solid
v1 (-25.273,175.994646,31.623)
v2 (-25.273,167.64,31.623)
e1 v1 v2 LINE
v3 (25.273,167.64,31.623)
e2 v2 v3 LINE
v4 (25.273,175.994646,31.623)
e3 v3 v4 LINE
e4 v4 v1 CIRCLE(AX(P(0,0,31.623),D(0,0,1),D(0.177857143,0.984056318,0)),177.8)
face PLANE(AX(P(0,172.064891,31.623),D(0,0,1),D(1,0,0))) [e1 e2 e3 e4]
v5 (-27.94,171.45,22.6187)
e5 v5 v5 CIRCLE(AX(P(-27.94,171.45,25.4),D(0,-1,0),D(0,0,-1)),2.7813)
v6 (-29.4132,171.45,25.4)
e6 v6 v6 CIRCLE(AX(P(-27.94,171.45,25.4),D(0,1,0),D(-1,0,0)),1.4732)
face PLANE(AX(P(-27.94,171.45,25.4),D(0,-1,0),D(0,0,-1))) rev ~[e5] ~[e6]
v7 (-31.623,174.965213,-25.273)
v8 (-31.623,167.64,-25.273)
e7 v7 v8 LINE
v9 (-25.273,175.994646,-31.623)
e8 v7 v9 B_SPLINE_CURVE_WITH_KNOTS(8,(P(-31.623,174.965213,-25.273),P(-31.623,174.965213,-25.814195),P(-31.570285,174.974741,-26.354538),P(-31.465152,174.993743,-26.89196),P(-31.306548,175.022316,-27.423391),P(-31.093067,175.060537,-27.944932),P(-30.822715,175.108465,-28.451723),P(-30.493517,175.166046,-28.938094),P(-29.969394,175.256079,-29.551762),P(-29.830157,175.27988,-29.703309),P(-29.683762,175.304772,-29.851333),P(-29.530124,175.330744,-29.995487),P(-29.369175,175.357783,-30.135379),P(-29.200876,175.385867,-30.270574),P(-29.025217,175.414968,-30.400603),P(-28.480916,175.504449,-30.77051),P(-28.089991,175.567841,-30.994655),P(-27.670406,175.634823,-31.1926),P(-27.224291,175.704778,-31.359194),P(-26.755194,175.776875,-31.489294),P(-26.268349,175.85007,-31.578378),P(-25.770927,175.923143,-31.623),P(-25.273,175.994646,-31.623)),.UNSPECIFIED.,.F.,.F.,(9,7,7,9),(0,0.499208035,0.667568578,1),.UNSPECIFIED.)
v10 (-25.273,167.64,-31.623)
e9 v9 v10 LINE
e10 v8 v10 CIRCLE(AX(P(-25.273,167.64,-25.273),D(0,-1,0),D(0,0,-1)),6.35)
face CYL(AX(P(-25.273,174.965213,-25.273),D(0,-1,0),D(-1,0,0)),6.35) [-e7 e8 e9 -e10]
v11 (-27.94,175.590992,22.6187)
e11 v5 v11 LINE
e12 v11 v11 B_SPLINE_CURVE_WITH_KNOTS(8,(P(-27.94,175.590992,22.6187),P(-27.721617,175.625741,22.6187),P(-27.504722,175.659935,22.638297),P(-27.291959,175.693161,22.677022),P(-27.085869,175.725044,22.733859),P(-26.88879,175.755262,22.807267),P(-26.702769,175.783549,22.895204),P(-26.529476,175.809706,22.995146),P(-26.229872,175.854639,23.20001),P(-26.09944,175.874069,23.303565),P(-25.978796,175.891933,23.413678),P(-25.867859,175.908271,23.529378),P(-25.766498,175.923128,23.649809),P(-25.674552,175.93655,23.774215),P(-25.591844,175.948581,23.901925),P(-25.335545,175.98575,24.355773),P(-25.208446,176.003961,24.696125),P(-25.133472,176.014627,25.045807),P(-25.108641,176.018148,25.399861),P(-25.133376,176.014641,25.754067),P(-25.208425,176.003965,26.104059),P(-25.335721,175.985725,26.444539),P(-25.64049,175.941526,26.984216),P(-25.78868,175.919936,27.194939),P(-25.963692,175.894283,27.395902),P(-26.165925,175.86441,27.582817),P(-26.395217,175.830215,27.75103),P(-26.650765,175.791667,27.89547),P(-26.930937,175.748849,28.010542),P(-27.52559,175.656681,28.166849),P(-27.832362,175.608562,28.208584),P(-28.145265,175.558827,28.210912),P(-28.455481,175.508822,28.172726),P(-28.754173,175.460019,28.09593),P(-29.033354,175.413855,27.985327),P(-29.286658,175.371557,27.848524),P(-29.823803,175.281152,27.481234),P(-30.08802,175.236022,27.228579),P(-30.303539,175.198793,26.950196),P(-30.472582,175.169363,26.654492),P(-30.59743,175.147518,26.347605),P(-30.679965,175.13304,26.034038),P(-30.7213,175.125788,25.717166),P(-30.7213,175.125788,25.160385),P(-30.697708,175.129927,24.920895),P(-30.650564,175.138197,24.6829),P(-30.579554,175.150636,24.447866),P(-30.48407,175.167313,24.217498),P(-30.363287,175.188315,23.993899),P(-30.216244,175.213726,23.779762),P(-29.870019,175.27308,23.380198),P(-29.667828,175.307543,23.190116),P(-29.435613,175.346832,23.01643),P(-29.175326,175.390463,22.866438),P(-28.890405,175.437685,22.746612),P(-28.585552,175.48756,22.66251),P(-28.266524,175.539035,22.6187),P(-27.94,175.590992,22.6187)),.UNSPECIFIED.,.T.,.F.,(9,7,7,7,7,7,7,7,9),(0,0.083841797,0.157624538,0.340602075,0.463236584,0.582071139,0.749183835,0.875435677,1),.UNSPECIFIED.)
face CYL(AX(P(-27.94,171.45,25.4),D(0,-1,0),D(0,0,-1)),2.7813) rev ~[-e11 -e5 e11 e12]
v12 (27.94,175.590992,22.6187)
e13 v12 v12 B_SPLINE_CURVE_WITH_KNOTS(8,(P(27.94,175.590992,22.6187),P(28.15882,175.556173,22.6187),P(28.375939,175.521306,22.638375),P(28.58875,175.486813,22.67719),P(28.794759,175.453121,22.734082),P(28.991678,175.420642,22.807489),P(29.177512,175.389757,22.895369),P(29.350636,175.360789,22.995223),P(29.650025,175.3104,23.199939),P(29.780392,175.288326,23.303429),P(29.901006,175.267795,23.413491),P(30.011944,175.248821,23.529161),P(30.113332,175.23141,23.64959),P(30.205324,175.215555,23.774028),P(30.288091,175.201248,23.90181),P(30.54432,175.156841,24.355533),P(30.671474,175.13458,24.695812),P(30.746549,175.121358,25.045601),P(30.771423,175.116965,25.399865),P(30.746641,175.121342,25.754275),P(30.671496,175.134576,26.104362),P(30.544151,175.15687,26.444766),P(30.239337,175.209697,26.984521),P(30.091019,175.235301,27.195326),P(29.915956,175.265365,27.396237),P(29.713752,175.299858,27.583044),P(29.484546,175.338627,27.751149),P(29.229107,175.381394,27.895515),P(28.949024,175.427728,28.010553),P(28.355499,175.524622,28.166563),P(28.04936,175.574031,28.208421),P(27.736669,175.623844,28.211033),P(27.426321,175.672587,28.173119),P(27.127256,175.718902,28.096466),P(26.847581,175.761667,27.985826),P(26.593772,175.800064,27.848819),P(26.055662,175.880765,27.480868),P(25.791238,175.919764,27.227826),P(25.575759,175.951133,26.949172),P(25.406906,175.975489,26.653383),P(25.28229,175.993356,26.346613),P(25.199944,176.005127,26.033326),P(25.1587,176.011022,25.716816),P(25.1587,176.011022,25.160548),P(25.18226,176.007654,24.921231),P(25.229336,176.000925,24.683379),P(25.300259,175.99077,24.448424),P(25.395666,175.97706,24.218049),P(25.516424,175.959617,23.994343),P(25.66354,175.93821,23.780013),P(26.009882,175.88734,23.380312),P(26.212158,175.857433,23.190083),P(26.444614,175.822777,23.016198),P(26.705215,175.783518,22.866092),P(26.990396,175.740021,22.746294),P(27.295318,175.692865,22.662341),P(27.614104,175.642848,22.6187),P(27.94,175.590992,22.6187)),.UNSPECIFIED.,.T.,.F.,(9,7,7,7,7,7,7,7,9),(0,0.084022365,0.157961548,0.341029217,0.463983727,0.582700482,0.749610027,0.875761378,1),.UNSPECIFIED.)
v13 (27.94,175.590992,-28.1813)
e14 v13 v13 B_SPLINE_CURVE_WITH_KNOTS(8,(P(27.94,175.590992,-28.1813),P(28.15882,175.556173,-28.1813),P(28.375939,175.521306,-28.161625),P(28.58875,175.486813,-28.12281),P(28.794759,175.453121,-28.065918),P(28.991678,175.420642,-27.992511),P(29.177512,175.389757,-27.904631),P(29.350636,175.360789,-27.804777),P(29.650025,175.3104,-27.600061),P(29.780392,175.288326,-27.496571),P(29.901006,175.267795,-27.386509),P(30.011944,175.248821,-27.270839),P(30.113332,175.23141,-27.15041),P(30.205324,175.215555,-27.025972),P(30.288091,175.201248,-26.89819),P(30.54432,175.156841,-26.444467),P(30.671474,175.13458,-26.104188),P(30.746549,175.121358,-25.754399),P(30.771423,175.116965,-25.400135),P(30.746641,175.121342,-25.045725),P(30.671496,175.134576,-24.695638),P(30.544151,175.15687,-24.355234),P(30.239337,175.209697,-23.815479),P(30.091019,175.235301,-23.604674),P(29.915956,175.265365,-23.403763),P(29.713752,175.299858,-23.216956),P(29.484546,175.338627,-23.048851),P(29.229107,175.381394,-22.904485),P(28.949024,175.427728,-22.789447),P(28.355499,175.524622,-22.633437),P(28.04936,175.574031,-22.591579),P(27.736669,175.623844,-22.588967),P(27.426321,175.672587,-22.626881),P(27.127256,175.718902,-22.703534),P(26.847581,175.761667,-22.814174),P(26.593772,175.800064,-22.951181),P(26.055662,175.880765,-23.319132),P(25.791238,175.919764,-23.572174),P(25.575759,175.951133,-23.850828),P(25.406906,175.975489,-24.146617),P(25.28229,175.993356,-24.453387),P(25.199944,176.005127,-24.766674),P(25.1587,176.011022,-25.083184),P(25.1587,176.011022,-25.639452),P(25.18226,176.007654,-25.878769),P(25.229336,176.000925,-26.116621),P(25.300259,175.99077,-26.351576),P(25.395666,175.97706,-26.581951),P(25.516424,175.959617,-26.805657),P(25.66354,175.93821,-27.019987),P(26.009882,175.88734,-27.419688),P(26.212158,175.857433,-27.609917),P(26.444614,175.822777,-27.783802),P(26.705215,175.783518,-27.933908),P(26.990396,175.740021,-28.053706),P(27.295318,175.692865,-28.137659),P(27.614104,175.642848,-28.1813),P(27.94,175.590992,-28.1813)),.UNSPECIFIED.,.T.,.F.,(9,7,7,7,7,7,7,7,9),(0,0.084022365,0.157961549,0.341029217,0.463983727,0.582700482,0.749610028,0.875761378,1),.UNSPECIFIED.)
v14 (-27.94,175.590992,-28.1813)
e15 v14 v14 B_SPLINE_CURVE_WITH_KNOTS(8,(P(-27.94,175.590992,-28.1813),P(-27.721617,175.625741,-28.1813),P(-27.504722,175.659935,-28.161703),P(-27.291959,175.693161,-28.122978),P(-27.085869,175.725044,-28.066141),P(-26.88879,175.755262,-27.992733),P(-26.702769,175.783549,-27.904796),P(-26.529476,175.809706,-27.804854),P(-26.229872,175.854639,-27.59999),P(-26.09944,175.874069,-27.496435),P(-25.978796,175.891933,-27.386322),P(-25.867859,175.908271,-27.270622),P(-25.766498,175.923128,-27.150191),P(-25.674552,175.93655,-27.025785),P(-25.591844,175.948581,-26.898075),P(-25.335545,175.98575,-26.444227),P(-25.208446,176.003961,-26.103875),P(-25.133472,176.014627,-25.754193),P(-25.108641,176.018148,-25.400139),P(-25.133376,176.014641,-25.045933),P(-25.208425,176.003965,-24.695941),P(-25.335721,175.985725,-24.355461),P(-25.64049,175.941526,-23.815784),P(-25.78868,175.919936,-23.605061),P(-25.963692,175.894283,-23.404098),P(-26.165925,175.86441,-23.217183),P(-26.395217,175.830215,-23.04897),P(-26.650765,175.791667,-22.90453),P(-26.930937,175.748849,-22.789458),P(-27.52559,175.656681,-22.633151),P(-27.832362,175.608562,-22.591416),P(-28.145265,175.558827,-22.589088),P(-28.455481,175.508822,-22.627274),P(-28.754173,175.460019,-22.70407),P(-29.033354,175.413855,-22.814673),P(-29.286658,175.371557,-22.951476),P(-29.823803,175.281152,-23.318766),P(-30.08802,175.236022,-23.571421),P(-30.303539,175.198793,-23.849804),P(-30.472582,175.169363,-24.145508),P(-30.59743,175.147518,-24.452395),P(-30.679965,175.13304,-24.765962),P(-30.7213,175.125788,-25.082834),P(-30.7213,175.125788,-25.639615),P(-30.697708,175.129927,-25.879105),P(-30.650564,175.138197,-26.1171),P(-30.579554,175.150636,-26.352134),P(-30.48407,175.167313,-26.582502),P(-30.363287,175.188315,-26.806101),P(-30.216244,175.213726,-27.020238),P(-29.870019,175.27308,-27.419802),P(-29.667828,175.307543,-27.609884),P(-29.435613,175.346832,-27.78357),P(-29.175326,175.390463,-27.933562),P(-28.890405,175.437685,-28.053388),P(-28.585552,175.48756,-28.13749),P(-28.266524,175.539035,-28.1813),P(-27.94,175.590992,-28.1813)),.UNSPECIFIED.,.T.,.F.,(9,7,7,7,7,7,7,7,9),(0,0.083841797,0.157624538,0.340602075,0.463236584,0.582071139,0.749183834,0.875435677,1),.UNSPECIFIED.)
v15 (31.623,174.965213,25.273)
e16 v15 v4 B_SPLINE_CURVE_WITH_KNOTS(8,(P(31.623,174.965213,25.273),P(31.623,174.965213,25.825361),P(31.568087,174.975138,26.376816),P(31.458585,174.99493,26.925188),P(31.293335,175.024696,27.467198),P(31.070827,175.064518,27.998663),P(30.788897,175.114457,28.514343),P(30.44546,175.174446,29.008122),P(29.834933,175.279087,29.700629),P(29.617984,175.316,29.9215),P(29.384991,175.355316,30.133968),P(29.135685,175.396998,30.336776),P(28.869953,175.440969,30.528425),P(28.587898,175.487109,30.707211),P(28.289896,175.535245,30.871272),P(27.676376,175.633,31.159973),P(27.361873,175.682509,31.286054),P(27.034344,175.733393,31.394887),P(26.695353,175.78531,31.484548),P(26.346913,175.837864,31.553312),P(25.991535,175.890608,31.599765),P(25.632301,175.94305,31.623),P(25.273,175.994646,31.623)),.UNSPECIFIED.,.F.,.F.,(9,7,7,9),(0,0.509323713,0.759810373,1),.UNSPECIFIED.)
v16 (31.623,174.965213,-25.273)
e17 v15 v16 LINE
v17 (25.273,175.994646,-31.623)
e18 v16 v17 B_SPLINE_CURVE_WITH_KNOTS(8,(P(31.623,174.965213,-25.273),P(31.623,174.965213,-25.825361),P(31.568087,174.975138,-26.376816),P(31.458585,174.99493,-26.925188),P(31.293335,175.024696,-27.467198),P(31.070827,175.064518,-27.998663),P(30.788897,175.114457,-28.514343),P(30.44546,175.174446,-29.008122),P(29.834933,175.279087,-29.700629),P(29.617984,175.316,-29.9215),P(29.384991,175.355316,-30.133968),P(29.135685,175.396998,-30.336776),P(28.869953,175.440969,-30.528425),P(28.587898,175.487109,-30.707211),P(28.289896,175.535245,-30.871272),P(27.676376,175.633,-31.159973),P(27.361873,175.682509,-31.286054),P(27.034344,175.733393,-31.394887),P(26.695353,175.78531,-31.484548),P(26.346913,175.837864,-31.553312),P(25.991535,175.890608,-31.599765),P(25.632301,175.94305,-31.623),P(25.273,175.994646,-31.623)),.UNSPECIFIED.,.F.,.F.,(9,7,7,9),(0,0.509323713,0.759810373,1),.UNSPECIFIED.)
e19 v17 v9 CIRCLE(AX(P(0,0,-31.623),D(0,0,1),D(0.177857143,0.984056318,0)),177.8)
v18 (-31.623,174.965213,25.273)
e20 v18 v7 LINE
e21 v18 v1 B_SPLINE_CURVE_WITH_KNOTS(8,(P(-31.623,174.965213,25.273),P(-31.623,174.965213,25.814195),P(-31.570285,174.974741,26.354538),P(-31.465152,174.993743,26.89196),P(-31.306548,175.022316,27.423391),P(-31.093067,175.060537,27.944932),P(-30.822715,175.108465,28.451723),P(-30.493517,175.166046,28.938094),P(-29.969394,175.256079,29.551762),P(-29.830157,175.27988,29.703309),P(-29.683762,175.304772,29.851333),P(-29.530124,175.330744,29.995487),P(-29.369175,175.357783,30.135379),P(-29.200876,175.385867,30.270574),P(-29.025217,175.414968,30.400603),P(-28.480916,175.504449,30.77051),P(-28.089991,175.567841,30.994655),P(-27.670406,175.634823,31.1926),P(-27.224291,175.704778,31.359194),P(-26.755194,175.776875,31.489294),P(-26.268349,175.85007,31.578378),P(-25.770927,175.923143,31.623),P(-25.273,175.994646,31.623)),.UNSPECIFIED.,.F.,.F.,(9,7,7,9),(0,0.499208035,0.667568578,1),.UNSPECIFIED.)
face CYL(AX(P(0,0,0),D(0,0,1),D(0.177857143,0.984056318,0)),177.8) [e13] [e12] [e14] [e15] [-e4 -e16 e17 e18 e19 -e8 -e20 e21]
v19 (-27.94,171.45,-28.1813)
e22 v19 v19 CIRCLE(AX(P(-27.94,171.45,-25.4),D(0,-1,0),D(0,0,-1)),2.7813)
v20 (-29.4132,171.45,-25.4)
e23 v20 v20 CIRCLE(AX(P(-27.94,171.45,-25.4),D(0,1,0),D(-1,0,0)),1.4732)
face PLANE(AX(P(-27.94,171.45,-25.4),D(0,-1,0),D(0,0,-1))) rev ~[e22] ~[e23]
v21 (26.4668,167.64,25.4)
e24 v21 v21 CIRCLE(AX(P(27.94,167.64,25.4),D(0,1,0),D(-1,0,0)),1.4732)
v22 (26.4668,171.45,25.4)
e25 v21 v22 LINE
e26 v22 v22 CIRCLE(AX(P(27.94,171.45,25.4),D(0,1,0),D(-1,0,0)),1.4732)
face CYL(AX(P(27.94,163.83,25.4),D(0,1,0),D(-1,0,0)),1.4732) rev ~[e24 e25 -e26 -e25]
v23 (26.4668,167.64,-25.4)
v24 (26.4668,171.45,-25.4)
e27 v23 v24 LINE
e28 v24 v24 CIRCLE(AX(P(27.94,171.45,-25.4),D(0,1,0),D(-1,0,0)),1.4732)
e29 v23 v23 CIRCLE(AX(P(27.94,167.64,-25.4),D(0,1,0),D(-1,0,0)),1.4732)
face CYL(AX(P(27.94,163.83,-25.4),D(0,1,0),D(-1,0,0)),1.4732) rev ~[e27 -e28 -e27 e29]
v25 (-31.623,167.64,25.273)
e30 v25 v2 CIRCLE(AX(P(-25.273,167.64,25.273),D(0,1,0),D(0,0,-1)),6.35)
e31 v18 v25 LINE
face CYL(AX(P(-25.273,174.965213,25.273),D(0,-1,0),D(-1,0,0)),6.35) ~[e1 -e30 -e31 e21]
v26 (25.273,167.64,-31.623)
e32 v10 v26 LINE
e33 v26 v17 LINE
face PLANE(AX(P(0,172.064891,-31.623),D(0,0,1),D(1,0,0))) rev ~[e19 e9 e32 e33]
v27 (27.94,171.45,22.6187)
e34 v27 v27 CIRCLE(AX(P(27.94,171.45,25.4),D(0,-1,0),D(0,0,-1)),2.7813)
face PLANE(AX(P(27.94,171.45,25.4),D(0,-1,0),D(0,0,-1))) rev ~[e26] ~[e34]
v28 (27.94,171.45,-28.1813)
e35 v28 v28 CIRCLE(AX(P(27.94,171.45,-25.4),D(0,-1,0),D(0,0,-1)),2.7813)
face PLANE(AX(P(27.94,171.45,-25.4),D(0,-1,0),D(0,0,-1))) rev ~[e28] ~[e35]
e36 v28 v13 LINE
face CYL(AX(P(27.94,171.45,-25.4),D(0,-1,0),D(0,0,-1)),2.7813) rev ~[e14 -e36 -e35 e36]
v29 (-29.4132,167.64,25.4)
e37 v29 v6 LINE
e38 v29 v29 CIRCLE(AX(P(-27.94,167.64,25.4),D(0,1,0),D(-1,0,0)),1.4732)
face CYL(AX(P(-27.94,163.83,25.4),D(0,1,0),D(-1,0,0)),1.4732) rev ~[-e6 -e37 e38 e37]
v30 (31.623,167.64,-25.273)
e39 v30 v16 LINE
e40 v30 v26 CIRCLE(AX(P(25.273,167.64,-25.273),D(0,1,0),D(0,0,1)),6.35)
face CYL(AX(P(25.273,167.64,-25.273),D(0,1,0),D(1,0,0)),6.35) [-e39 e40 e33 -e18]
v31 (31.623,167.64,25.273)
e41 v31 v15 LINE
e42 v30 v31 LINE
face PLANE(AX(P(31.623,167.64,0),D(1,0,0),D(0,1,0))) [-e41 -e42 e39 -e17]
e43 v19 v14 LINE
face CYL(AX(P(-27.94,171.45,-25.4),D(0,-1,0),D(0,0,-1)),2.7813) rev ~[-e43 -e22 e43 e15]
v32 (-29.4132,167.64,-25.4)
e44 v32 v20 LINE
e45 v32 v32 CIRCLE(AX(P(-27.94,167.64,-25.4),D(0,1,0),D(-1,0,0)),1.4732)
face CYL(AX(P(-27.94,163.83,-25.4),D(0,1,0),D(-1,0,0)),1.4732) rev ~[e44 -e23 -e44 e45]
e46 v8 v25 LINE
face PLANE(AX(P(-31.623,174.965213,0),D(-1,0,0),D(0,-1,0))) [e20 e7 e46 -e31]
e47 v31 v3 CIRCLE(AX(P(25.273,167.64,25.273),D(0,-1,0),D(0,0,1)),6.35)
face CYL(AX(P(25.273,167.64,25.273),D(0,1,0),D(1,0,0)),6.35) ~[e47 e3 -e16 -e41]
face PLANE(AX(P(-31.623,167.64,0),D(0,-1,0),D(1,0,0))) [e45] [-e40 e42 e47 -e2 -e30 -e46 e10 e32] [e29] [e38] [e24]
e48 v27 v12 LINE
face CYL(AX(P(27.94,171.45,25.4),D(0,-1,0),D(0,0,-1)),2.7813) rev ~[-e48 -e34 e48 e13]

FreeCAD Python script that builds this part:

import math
import FreeCAD as App
import Part
import Sketcher

V = App.Vector
Q = App.Units.Quantity


def edges_at(feature, points):
    """Names of the edges that pass closest to the given points."""
    edges = feature.Shape.Edges
    near = lambda p: min(range(len(edges)), key=lambda i: edges[i].distToShape(Part.Vertex(*p))[0])
    return sorted({f"Edge{near(p) + 1}" for p in points})

doc = App.newDocument("Part")
params = doc.addObject("Spreadsheet::Sheet", "Params")
for row, (alias, value) in enumerate([
    ("sketch1_radius", "7 in"),
    ("sketch1_width", "2.49 in"),
    ("pad1_length", "2.49 in"),
    ("fillet_radius", "0.25 in"),
    ("sketch2_diameter", "0.116 in"),
    ("hole_diameter", "0.116 in"),
    ("hole_depth", "0.15 in"),
    ("sketch3_diameter", "0.219 in"),
], start=1):
    params.set(f"A{row}", alias)
    params.set(f"B{row}", "=" + value)
    params.setAlias(f"B{row}", alias)

body = doc.addObject("PartDesign::Body", "Body")

sketch1 = body.newObject("Sketcher::SketchObject", "Sketch")
sketch1.AttachmentSupport = (doc.getObject("XY_Plane"), [""])
sketch1.MapMode = "FlatFace"
sketch1.addGeometry([
    Part.LineSegment(V(-32, 175, 0), V(-32, 168, 0)),
    Part.LineSegment(V(-32, 168, 0), V(32, 168, 0)),
    Part.LineSegment(V(32, 168, 0), V(32, 175, 0)),
    Part.ArcOfCircle(Part.Circle(V(0, 0, 0), V(0, 0, 1), 178), math.radians(80), math.radians(100)),
], False)
sketch1.addConstraint([
    Sketcher.Constraint("Coincident", 0, 2, 1, 1),
    Sketcher.Constraint("Coincident", 1, 2, 2, 1),
    Sketcher.Constraint("Coincident", 2, 2, 3, 1),
    Sketcher.Constraint("Coincident", 3, 2, 0, 1),
    Sketcher.Constraint("Vertical", 0),
    Sketcher.Constraint("Horizontal", 1),
    Sketcher.Constraint("Vertical", 2),
    Sketcher.Constraint("Coincident", 3, 3, -1, 1),
    Sketcher.Constraint("Horizontal", 2, 2, 3, 2),
    Sketcher.Constraint("Radius", 3, Q("7 in")),
    Sketcher.Constraint("DistanceX", 1, 1, 1, 2, Q("2.49 in")),
    Sketcher.Constraint("DistanceY", -1, 1, 0, 2, Q("6.6 in")),
])
sketch1.setExpression("Constraints[9]", "Params.sketch1_radius")
sketch1.setExpression("Constraints[10]", "Params.sketch1_width")
pad1 = body.newObject("PartDesign::Pad", "Pad")
pad1.Profile = sketch1
pad1.setExpression("Length", "Params.pad1_length")
pad1.Midplane = True
doc.recompute()

fillet = body.newObject("PartDesign::Fillet", "Fillet")
fillet.Base = (pad1, edges_at(pad1, [
    (31.623, 171.303, 31.623),
    (31.623, 171.303, -31.623),
    (-31.623, 171.303, 31.623),
    (-31.623, 171.303, -31.623),
]))
fillet.setExpression("Radius", "Params.fillet_radius")

sketch2 = body.newObject("Sketcher::SketchObject", "Sketch001")
sketch2.AttachmentSupport = (doc.getObject("XZ_Plane"), [""])
sketch2.MapMode = "FlatFace"
sketch2.AttachmentOffset = App.Placement(V(0, 0, -6.6 * 25.4), App.Rotation())
sketch2.addGeometry([
    Part.Circle(V(27.9, -25.4, 0), V(0, 0, 1), 1.5),
    Part.Circle(V(-27.9, -25.4, 0), V(0, 0, 1), 1.5),
    Part.Circle(V(27.9, 25.4, 0), V(0, 0, 1), 1.5),
    Part.Circle(V(-27.9, 25.4, 0), V(0, 0, 1), 1.5),
], False)
sketch2.addConstraint([
    Sketcher.Constraint("Equal", 0, 1),
    Sketcher.Constraint("Equal", 1, 2),
    Sketcher.Constraint("Equal", 2, 3),
    Sketcher.Constraint("Symmetric", 1, 3, 2, 3, -1, 1),
    Sketcher.Constraint("Symmetric", 0, 3, 3, 3, -1, 1),
    Sketcher.Constraint("Symmetric", 0, 3, 1, 3, -2),
    Sketcher.Constraint("Diameter", 0, Q("0.116 in")),
    Sketcher.Constraint("DistanceY", 0, 3, -1, 1, Q("1 in")),
    Sketcher.Constraint("DistanceX", -1, 1, 0, 3, Q("1.1 in")),
])
sketch2.setExpression("Constraints[6]", "Params.sketch2_diameter")
doc.recompute()
hole = body.newObject("PartDesign::Hole", "Hole")
hole.Profile = sketch2
hole.ThreadType = "None"
hole.setExpression("Diameter", "Params.hole_diameter")
hole.DepthType = "Dimension"
hole.setExpression("Depth", "Params.hole_depth")
hole.DrillPoint = "Flat"

sketch3 = body.newObject("Sketcher::SketchObject", "Sketch002")
sketch3.AttachmentSupport = (doc.getObject("XZ_Plane"), [""])
sketch3.MapMode = "FlatFace"
sketch3.AttachmentOffset = App.Placement(V(0, 0, -6.75 * 25.4), App.Rotation())
sketch3.addGeometry([
    Part.Circle(V(27.9, -25.4, 0), V(0, 0, 1), 2.8),
    Part.Circle(V(27.9, 25.4, 0), V(0, 0, 1), 2.8),
    Part.Circle(V(-27.9, 25.4, 0), V(0, 0, 1), 2.8),
    Part.Circle(V(-27.9, -25.4, 0), V(0, 0, 1), 2.8),
], False)
sketch3.addConstraint([
    Sketcher.Constraint("Equal", 0, 1),
    Sketcher.Constraint("Equal", 1, 2),
    Sketcher.Constraint("Equal", 2, 3),
    Sketcher.Constraint("Symmetric", 0, 3, 2, 3, -1, 1),
    Sketcher.Constraint("Symmetric", 1, 3, 3, 3, -1, 1),
    Sketcher.Constraint("Symmetric", 1, 3, 2, 3, -2),
    Sketcher.Constraint("Diameter", 0, Q("0.219 in")),
    Sketcher.Constraint("DistanceY", 0, 3, -1, 1, Q("1 in")),
    Sketcher.Constraint("DistanceX", -1, 1, 0, 3, Q("1.1 in")),
])
sketch3.setExpression("Constraints[6]", "Params.sketch3_diameter")
pocket1 = body.newObject("PartDesign::Pocket", "Pocket")
pocket1.Profile = sketch3
pocket1.Type = "ThroughAll"

doc.recompute()
